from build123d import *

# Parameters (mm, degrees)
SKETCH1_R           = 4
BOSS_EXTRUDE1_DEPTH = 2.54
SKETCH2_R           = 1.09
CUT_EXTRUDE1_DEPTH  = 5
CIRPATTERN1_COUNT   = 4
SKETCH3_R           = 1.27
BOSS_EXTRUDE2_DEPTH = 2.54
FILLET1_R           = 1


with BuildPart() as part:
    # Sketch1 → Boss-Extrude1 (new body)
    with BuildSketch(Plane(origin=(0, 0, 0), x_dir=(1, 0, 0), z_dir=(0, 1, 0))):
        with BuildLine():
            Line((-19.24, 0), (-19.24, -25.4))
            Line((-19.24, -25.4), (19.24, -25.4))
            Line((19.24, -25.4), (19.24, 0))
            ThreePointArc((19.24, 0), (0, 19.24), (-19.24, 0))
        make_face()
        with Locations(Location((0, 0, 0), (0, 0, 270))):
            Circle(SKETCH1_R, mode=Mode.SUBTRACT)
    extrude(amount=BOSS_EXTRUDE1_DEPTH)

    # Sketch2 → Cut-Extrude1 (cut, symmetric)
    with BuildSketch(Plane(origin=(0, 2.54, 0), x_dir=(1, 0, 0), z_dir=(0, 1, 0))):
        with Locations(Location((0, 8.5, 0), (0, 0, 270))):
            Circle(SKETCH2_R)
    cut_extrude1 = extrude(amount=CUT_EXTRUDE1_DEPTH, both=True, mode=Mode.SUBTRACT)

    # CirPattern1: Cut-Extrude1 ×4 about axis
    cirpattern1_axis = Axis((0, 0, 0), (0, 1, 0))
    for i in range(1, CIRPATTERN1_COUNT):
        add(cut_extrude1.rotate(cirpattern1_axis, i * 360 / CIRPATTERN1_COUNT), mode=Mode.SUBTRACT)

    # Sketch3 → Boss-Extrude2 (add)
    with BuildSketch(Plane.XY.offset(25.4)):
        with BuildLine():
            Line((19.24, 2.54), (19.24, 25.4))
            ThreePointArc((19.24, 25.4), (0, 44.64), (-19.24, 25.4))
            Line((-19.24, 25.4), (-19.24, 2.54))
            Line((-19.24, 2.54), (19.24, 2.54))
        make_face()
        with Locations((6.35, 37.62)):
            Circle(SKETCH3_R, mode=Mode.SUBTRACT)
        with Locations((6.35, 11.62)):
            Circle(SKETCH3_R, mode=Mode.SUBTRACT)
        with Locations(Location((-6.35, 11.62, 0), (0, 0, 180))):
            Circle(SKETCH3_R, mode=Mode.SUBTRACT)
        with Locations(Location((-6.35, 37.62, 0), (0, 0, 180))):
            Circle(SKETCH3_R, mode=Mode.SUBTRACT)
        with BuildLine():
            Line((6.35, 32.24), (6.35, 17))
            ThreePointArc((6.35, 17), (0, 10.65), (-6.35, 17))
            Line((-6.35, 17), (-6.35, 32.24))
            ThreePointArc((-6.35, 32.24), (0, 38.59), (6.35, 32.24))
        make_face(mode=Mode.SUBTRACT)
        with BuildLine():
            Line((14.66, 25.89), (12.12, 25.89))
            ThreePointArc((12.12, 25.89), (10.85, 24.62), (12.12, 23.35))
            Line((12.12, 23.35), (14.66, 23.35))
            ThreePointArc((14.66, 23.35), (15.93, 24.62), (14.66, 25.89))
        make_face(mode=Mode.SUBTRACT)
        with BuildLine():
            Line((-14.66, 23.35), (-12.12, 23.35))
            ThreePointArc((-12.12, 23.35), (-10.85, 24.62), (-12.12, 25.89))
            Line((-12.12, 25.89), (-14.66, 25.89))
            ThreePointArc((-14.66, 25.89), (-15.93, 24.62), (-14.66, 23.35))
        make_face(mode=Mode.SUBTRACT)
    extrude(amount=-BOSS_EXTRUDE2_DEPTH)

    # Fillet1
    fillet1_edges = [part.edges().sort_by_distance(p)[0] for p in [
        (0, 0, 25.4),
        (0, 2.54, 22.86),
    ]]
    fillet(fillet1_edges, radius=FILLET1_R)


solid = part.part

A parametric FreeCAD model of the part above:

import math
import FreeCAD as App
import Part
import Sketcher
from FreeCAD import Vector
Q = App.Units.Quantity


def edges_at(feature, points):
    """Names of the edges that pass closest to the given points."""
    edges = feature.Shape.Edges
    near = lambda p: min(range(len(edges)), key=lambda i: edges[i].distToShape(Part.Vertex(*p))[0])
    return sorted({f"Edge{near(p) + 1}" for p in points})

doc = App.newDocument("Part")
body = doc.addObject("PartDesign::Body", "Body")

# Sketch on XZ plane
sketch1 = body.newObject("Sketcher::SketchObject", "Sketch")
sketch1.AttachmentSupport = (doc.getObject("XZ_Plane"), [""])
sketch1.MapMode = "FlatFace"
sketch1.addGeometry([
    Part.LineSegment(Vector(-19.2, 0, 0), Vector(-19.2, 25.4, 0)),  # 0
    Part.LineSegment(Vector(-19.2, 25.4, 0), Vector(19.2, 25.4, 0)),  # 1
    Part.LineSegment(Vector(19.2, 25.4, 0), Vector(19.2, 0, 0)),  # 2
    Part.ArcOfCircle(Part.Circle(Vector(0, 0, 0), Vector(0, 0, 1), 19.2), math.radians(180), math.radians(360)),  # 3
    Part.Circle(Vector(0, 0, 0), Vector(0, 0, 1), 4),  # 4
], False)
sketch1.addConstraint([
    Sketcher.Constraint("Coincident", 0, 2, 1, 1),
    Sketcher.Constraint("Coincident", 1, 2, 2, 1),
    Sketcher.Constraint("Tangent", 2, 2, 3, 2),
    Sketcher.Constraint("Tangent", 3, 1, 0, 1),
    Sketcher.Constraint("Vertical", 0),
    Sketcher.Constraint("Horizontal", 1),
    Sketcher.Constraint("Vertical", 2),
    Sketcher.Constraint("Coincident", 3, 3, -1, 1),
    Sketcher.Constraint("Coincident", 4, 3, -1, 1),
    Sketcher.Constraint("DistanceY", 0, 1, 0, 2, Q("1 in")),
    Sketcher.Constraint("Diameter", 4, 8.0),
    Sketcher.Constraint("Radius", 3, 19.24),
])
pad1 = body.newObject("PartDesign::Pad", "Pad")
pad1.Profile = sketch1
pad1.Length = Q("0.1 in")
pad1.Reversed = True

# Sketch on XZ plane
sketch2 = body.newObject("Sketcher::SketchObject", "Sketch001")
sketch2.AttachmentSupport = (doc.getObject("XZ_Plane"), [""])
sketch2.MapMode = "FlatFace"
sketch2.AttachmentOffset = App.Placement(Vector(0, 0, -0.1 * 25.4), App.Rotation())
sketch2.addGeometry(Part.Circle(Vector(0, -8.5, 0), Vector(0, 0, 1), 1.1), False)
sketch2.addConstraint([
    Sketcher.Constraint("PointOnObject", 0, 3, -2),
    Sketcher.Constraint("Diameter", 0, 2.18),
    Sketcher.Constraint("DistanceY", 0, 3, -1, 1, 8.5),
])
pocket1 = body.newObject("PartDesign::Pocket", "Pocket")
pocket1.Profile = sketch2
pocket1.Length = 10
pocket1.Midplane = True
doc.recompute()

polarpattern = body.newObject("PartDesign::PolarPattern", "PolarPattern")
polarpattern.Originals = [pocket1]
polarpattern.Axis = (doc.getObject("Y_Axis"), [""])
polarpattern.Angle = 360
polarpattern.Occurrences = 4
body.Tip = polarpattern

# Sketch on XY plane
sketch3 = body.newObject("Sketcher::SketchObject", "Sketch002")
sketch3.AttachmentSupport = (doc.getObject("XY_Plane"), [""])
sketch3.MapMode = "FlatFace"
sketch3.AttachmentOffset = App.Placement(Vector(0, 0, 1 * 25.4), App.Rotation())
sketch3.addGeometry([
    Part.LineSegment(Vector(19.2, 2.5, 0), Vector(19.2, 25.4, 0)),  # 0
    Part.ArcOfCircle(Part.Circle(Vector(0, 25.4, 0), Vector(0, 0, 1), 19.2), math.radians(0), math.radians(180)),  # 1
    Part.LineSegment(Vector(-19.2, 25.4, 0), Vector(-19.2, 2.5, 0)),  # 2
    Part.LineSegment(Vector(-19.2, 2.5, 0), Vector(19.2, 2.5, 0)),  # 3
    Part.Circle(Vector(-6.3, 11.6, 0), Vector(0, 0, 1), 1.3),  # 4
    Part.Circle(Vector(6.3, 11.6, 0), Vector(0, 0, 1), 1.3),  # 5
    Part.LineSegment(Vector(-12.1, 23.4, 0), Vector(-14.7, 23.4, 0)),  # 6
    Part.ArcOfCircle(Part.Circle(Vector(-14.7, 24.6, 0), Vector(0, 0, 1), 1.3), math.radians(90), math.radians(270)),  # 7
    Part.LineSegment(Vector(-14.7, 25.9, 0), Vector(-12.1, 25.9, 0)),  # 8
    Part.ArcOfCircle(Part.Circle(Vector(-12.1, 24.6, 0), Vector(0, 0, 1), 1.3), math.radians(-90), math.radians(90)),  # 9
    Part.ArcOfCircle(Part.Circle(Vector(0, 32.2, 0), Vector(0, 0, 1), 6.3), math.radians(0), math.radians(180)),  # 10
    Part.LineSegment(Vector(6.3, 32.2, 0), Vector(6.3, 17, 0)),  # 11
    Part.ArcOfCircle(Part.Circle(Vector(0, 17, 0), Vector(0, 0, 1), 6.3), math.radians(180), math.radians(360)),  # 12
    Part.LineSegment(Vector(-6.3, 17, 0), Vector(-6.3, 32.2, 0)),  # 13
    Part.Circle(Vector(-6.3, 37.6, 0), Vector(0, 0, 1), 1.3),  # 14
    Part.LineSegment(Vector(12.1, 25.9, 0), Vector(14.7, 25.9, 0)),  # 15
    Part.ArcOfCircle(Part.Circle(Vector(14.7, 24.6, 0), Vector(0, 0, 1), 1.3), math.radians(-90), math.radians(90)),  # 16
    Part.LineSegment(Vector(14.7, 23.4, 0), Vector(12.1, 23.4, 0)),  # 17
    Part.ArcOfCircle(Part.Circle(Vector(12.1, 24.6, 0), Vector(0, 0, 1), 1.3), math.radians(90), math.radians(270)),  # 18
    Part.Circle(Vector(6.3, 37.6, 0), Vector(0, 0, 1), 1.3),  # 19
], False)
sketch3.addConstraint([
    Sketcher.Constraint("Tangent", 0, 2, 1, 1),
    Sketcher.Constraint("Tangent", 1, 2, 2, 1),
    Sketcher.Constraint("Coincident", 2, 2, 3, 1),
    Sketcher.Constraint("Coincident", 3, 2, 0, 1),
    Sketcher.Constraint("Tangent", 6, 2, 7, 2),
    Sketcher.Constraint("Tangent", 7, 1, 8, 1),
    Sketcher.Constraint("Tangent", 8, 2, 9, 2),
    Sketcher.Constraint("Tangent", 9, 1, 6, 1),
    Sketcher.Constraint("Tangent", 10, 1, 11, 1),
    Sketcher.Constraint("Tangent", 11, 2, 12, 2),
    Sketcher.Constraint("Tangent", 12, 1, 13, 1),
    Sketcher.Constraint("Tangent", 13, 2, 10, 2),
    Sketcher.Constraint("Tangent", 15, 2, 16, 2),
    Sketcher.Constraint("Tangent", 16, 1, 17, 1),
    Sketcher.Constraint("Tangent", 17, 2, 18, 2),
    Sketcher.Constraint("Tangent", 18, 1, 15, 1),
    Sketcher.Constraint("Vertical", 0),
    Sketcher.Constraint("Vertical", 2),
    Sketcher.Constraint("Horizontal", 3),
    Sketcher.Constraint("Horizontal", 6),
    Sketcher.Constraint("Horizontal", 8),
    Sketcher.Constraint("Vertical", 11),
    Sketcher.Constraint("Vertical", 13),
    Sketcher.Constraint("Horizontal", 15),
    Sketcher.Constraint("Horizontal", 17),
    Sketcher.Constraint("Equal", 4, 5),
    Sketcher.Constraint("Equal", 5, 7),
    Sketcher.Constraint("Equal", 9, 14),
    Sketcher.Constraint("Equal", 14, 16),
    Sketcher.Constraint("Equal", 18, 19),
    Sketcher.Constraint("Symmetric", 4, 3, 5, 3, -2),
    Sketcher.Constraint("Symmetric", 7, 3, 16, 3, -2),
    Sketcher.Constraint("Symmetric", 14, 3, 19, 3, -2),
    Sketcher.Constraint("PointOnObject", 1, 3, -2),
    Sketcher.Constraint("PointOnObject", 10, 3, -2),
    Sketcher.Constraint("Vertical", 4, 3, 14, 3),
    Sketcher.Constraint("Vertical", 19, 3, 10, 1),
    Sketcher.Constraint("Equal", 8, 15),
    Sketcher.Constraint("Diameter", 4, Q("0.1 in")),
    Sketcher.Constraint("Radius", 10, Q("0.25 in")),
    Sketcher.Constraint("DistanceX", 6, 2, 6, 1, Q("0.1 in")),
    Sketcher.Constraint("DistanceY", 0, 1, 0, 2, Q("0.9 in")),
    Sketcher.Constraint("DistanceY", 11, 2, 11, 1, Q("0.6 in")),
    Sketcher.Constraint("DistanceY", -1, 1, 1, 3, Q("1 in")),
    Sketcher.Constraint("DistanceY", 9, 3, 10, 3, Q("0.3 in")),
    Sketcher.Constraint("Radius", 1, 19.24),
    Sketcher.Constraint("DistanceY", -1, 1, 4, 3, 11.62),
    Sketcher.Constraint("DistanceX", 7, 3, -1, 1, 14.66),
    Sketcher.Constraint("DistanceY", -1, 1, 7, 3, 24.62),
    Sketcher.Constraint("DistanceY", -1, 1, 14, 3, 37.62),
])
pad2 = body.newObject("PartDesign::Pad", "Pad001")
pad2.Profile = sketch3
pad2.Length = Q("0.1 in")
pad2.Reversed = True
doc.recompute()

fillet = body.newObject("PartDesign::Fillet", "Fillet")
fillet.Base = (pad2, edges_at(pad2, [(0, 0, 25.4), (0, 2.54, 22.86)]))
fillet.Radius = 1

doc.recompute()
